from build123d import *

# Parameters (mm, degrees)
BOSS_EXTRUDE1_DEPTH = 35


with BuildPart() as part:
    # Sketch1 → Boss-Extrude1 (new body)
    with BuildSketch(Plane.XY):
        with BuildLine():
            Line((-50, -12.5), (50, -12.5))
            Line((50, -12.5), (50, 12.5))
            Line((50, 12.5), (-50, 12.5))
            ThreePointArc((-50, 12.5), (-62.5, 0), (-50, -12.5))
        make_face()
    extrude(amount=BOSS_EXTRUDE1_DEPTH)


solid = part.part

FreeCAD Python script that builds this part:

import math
import FreeCAD as App
import Part
import Sketcher
from FreeCAD import Vector

doc = App.newDocument("Part")
body = doc.addObject("PartDesign::Body", "Body")

sketch1 = body.newObject("Sketcher::SketchObject", "Sketch")
sketch1.AttachmentSupport = (doc.getObject("XY_Plane"), [""])
sketch1.MapMode = "FlatFace"
sketch1.addGeometry([
    Part.LineSegment(Vector(-50, -12, 0), Vector(50, -12, 0)),
    Part.LineSegment(Vector(50, -12, 0), Vector(50, 12, 0)),
    Part.LineSegment(Vector(50, 12, 0), Vector(-50, 12, 0)),
    Part.ArcOfCircle(Part.Circle(Vector(-50, 0, 0), Vector(0, 0, 1), 12), math.radians(90), math.radians(270)),
], False)
sketch1.addConstraint([
    Sketcher.Constraint("Coincident", 0, 2, 1, 1),
    Sketcher.Constraint("Coincident", 1, 2, 2, 1),
    Sketcher.Constraint("Tangent", 2, 2, 3, 1),
    Sketcher.Constraint("Tangent", 3, 2, 0, 1),
    Sketcher.Constraint("Horizontal", 0),
    Sketcher.Constraint("Vertical", 1),
    Sketcher.Constraint("Horizontal", 2),
    Sketcher.Constraint("Symmetric", 0, 2, 2, 2, -1, 1),
    Sketcher.Constraint("Radius", 3, 12.5),
    Sketcher.Constraint("DistanceX", 0, 1, 0, 2, 100.0),
])
pad1 = body.newObject("PartDesign::Pad", "Pad")
pad1.Profile = sketch1
pad1.Length = 35

doc.recompute()
